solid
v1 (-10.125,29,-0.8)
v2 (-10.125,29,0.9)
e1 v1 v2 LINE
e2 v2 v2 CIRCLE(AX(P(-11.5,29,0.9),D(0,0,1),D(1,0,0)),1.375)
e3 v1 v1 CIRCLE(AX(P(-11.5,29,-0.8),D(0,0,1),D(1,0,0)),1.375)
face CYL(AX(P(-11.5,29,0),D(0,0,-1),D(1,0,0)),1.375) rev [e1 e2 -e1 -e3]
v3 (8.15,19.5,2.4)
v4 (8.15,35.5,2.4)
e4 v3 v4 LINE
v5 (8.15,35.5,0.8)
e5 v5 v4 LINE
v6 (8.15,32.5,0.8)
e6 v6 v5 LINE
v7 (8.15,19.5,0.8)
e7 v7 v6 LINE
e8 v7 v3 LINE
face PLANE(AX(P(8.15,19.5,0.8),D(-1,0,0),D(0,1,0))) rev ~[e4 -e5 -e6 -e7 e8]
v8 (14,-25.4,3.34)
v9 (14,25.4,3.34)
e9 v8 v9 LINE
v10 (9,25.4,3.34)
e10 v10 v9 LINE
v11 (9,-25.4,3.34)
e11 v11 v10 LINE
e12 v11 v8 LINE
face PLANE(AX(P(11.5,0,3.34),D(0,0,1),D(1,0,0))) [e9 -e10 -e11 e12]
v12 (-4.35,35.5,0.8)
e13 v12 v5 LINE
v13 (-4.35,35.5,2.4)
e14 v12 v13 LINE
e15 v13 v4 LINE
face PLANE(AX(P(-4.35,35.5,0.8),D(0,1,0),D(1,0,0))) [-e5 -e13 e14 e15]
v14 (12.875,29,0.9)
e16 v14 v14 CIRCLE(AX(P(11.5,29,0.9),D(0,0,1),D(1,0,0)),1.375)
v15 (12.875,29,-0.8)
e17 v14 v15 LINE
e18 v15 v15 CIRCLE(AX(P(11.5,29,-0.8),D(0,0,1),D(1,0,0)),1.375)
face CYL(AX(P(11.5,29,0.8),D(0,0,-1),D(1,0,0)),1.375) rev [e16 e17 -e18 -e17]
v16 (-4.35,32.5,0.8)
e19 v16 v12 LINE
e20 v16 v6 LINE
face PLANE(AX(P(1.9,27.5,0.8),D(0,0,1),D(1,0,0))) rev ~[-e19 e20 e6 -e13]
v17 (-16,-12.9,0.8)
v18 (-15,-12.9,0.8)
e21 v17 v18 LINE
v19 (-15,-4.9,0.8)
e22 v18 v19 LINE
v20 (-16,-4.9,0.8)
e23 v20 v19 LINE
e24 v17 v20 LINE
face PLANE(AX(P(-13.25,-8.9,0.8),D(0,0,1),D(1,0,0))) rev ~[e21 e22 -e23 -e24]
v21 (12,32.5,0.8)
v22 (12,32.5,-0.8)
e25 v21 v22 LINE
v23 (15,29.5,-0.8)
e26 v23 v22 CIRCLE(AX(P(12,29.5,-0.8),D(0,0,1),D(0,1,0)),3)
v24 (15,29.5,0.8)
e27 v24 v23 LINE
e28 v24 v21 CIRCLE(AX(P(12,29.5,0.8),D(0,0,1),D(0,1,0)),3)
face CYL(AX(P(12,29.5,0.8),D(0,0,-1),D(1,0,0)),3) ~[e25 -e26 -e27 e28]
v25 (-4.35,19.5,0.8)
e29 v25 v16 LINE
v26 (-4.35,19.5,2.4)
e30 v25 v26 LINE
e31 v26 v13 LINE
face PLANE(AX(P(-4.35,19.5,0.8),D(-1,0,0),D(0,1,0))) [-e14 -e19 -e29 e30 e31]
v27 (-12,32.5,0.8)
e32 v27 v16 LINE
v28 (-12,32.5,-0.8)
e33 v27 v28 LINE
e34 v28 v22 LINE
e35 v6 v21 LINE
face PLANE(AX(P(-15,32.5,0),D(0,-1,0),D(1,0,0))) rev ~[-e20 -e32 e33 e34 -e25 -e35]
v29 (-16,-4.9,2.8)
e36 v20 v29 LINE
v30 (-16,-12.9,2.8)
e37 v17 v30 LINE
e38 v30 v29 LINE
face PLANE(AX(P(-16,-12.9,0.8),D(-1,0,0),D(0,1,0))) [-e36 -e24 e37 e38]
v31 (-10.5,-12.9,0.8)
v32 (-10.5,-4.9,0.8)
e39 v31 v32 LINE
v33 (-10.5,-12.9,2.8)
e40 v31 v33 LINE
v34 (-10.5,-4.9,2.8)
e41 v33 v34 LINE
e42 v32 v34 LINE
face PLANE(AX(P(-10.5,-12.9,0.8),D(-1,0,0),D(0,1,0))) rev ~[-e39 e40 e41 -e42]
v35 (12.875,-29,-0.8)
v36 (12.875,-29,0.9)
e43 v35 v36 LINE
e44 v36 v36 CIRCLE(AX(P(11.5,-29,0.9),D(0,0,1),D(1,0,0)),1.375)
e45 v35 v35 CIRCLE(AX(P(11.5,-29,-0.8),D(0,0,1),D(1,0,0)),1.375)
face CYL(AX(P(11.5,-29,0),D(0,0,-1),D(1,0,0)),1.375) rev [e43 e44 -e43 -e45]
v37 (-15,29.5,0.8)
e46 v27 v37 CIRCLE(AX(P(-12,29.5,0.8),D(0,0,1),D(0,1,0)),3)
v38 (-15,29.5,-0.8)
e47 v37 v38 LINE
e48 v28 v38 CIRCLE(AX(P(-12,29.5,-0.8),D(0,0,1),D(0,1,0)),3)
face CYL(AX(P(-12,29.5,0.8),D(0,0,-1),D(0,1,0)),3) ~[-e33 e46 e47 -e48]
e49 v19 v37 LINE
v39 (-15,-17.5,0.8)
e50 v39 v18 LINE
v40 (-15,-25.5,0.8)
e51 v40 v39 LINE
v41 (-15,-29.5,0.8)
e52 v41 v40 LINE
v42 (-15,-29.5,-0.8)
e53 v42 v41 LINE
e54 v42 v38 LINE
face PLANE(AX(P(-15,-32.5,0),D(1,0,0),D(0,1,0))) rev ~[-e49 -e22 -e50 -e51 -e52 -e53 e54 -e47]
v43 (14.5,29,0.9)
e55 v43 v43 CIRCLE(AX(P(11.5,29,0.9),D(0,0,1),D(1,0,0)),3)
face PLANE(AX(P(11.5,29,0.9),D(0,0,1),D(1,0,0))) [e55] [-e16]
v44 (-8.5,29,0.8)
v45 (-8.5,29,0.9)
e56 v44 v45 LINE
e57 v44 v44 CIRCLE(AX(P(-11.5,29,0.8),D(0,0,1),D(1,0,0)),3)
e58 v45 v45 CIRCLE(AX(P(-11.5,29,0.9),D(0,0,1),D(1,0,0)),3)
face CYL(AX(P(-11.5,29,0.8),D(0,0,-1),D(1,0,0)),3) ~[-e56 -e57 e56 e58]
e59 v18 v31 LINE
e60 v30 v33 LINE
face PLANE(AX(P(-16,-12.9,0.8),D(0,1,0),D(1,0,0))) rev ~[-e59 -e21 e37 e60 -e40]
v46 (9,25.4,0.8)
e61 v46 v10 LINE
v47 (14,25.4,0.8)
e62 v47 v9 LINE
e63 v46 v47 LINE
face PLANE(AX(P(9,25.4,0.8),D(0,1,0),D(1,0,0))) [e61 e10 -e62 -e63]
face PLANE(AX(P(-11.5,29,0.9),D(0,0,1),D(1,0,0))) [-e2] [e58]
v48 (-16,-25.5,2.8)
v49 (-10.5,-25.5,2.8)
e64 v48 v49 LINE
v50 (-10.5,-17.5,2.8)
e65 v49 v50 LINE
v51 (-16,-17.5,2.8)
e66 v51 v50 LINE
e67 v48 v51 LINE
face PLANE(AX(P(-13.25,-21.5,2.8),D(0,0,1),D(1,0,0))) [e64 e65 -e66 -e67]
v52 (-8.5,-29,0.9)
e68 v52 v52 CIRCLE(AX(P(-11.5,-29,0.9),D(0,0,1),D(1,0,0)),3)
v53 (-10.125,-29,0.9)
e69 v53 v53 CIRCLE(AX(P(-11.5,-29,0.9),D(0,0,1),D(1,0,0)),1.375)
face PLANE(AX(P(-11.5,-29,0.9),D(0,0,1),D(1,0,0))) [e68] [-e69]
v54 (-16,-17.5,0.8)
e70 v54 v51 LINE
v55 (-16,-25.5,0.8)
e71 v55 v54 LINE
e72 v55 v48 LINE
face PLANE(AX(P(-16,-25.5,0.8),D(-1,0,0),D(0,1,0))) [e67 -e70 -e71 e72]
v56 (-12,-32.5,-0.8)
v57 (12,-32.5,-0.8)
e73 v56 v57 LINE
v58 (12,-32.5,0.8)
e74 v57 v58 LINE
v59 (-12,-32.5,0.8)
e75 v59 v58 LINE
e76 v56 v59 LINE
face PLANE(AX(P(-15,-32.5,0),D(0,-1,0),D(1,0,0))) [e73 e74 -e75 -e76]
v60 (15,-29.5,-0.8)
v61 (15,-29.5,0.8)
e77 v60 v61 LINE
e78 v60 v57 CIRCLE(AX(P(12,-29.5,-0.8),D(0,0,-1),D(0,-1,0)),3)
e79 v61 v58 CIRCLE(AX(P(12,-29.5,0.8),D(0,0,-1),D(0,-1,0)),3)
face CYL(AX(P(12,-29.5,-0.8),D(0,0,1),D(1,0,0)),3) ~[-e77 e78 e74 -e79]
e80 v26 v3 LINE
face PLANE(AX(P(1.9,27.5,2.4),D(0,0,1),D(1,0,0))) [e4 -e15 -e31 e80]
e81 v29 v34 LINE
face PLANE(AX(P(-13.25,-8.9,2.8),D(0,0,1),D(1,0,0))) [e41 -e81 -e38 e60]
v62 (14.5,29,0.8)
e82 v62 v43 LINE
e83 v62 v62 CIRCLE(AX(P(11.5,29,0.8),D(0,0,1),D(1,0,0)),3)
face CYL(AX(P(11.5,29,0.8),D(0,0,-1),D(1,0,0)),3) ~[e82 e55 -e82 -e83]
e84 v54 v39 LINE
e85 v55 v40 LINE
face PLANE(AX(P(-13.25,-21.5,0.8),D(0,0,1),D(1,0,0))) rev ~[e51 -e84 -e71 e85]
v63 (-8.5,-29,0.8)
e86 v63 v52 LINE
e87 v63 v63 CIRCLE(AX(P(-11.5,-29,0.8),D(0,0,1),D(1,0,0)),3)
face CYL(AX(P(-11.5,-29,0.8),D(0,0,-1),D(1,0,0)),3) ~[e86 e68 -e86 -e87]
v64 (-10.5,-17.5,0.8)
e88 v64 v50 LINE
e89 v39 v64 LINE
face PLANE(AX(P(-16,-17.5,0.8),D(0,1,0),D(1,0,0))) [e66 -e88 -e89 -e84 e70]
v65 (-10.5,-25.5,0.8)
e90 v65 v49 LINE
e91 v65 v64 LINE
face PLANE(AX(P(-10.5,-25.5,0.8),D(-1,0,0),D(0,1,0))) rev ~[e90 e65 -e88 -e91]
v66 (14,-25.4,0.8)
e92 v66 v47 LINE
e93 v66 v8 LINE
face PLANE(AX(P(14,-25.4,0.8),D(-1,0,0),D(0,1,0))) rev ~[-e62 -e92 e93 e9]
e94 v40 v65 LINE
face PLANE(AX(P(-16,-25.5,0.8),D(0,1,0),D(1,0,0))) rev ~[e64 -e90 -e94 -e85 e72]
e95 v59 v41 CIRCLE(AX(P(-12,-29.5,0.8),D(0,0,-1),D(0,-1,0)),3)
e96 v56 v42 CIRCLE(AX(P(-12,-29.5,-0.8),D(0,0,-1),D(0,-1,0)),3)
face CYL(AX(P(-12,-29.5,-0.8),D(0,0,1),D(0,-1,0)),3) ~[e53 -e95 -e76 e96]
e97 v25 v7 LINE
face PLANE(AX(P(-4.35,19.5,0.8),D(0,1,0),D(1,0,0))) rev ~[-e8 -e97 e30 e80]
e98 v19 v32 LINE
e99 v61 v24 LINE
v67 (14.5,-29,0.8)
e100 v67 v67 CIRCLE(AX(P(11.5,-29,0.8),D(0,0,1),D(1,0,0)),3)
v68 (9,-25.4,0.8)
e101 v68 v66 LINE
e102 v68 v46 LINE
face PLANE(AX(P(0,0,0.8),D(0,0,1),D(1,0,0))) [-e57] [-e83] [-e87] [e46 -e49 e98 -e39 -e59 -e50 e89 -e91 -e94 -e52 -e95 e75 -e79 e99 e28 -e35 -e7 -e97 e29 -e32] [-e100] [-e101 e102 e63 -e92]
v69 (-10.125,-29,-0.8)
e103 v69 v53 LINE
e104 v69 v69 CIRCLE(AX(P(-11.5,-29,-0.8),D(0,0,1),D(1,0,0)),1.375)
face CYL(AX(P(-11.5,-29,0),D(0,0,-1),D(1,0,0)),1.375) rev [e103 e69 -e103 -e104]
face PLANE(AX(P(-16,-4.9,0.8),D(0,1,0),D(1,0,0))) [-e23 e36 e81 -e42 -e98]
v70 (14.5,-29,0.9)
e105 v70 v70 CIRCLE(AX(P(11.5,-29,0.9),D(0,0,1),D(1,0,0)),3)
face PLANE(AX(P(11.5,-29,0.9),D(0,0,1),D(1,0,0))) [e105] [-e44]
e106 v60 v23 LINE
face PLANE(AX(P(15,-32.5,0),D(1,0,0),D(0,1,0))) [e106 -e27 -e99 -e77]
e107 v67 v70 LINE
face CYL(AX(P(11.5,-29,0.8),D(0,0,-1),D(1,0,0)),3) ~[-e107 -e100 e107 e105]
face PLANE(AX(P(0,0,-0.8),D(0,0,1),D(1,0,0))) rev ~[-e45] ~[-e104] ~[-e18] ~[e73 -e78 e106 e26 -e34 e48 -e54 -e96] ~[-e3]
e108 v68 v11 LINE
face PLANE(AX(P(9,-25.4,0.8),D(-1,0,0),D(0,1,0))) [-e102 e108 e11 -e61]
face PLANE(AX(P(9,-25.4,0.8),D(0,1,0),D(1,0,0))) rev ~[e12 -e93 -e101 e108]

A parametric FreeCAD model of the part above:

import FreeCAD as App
import Part
import Sketcher


def edges_at(feature, points):
    """Names of the edges that pass closest to the given points."""
    edges = feature.Shape.Edges
    near = lambda p: min(range(len(edges)), key=lambda i: edges[i].distToShape(Part.Vertex(*p))[0])
    return sorted({f"Edge{near(p) + 1}" for p in points})


def add_polygon(sketch, points):
    """Adds a closed chain of lines whose ends are joined by coincident constraints."""
    first, n = sketch.GeometryCount, len(points)
    for a, b in zip(points, points[1:] + points[:1]):
        sketch.addGeometry(Part.LineSegment(App.Vector(*a, 0), App.Vector(*b, 0)), False)
    for i in range(n):
        sketch.addConstraint(Sketcher.Constraint("Coincident", first + i, 2, first + (i + 1) % n, 1))

doc = App.newDocument("Part")
body = doc.addObject("PartDesign::Body", "Body")

# Sketch on XY plane
sketch1 = body.newObject("Sketcher::SketchObject", "Sketch")
sketch1.AttachmentSupport = (doc.getObject("XY_Plane"), [""])
sketch1.MapMode = "FlatFace"
add_polygon(sketch1, [(-15, 32.5), (-15, -32.5), (15, -32.5), (15, 32.5)])  # lines 0-3
sketch1.addGeometry(Part.Circle(App.Vector(-11.5, -29, 0), App.Vector(0, 0, 1), 1.4), False)  # 4
sketch1.addGeometry(Part.Circle(App.Vector(11.5, -29, 0), App.Vector(0, 0, 1), 1.4), False)  # 5
sketch1.addGeometry(Part.Circle(App.Vector(-11.5, 29, 0), App.Vector(0, 0, 1), 1.4), False)  # 6
sketch1.addGeometry(Part.Circle(App.Vector(11.5, 29, 0), App.Vector(0, 0, 1), 1.4), False)  # 7
sketch1.addConstraint(Sketcher.Constraint("Vertical", 0))
sketch1.addConstraint(Sketcher.Constraint("Horizontal", 1))
sketch1.addConstraint(Sketcher.Constraint("Vertical", 2))
sketch1.addConstraint(Sketcher.Constraint("Horizontal", 3))
sketch1.addConstraint(Sketcher.Constraint("Equal", 4, 5))
sketch1.addConstraint(Sketcher.Constraint("Equal", 5, 6))
sketch1.addConstraint(Sketcher.Constraint("Equal", 6, 7))
sketch1.addConstraint(Sketcher.Constraint("Symmetric", 5, 3, 6, 3, -1, 1))
sketch1.addConstraint(Sketcher.Constraint("Symmetric", 4, 3, 7, 3, -1, 1))
sketch1.addConstraint(Sketcher.Constraint("Symmetric", 0, 2, 2, 2, -1, 1))
sketch1.addConstraint(Sketcher.Constraint("Symmetric", 4, 3, 5, 3, -2))
sketch1.addConstraint(Sketcher.Constraint("Diameter", 4, 2.75))
sketch1.addConstraint(Sketcher.Constraint("DistanceX", 1, 1, 1, 2, 30.0))
sketch1.addConstraint(Sketcher.Constraint("DistanceY", 0, 2, 0, 1, 65.0))
sketch1.addConstraint(Sketcher.Constraint("DistanceY", 4, 3, -1, 1, 29.0))
sketch1.addConstraint(Sketcher.Constraint("DistanceX", 4, 3, 5, 3, 23.0))
pad1 = body.newObject("PartDesign::Pad", "Pad")
pad1.Profile = sketch1
pad1.Length = 1.6
pad1.Midplane = True

# Sketch on XY plane
sketch2 = body.newObject("Sketcher::SketchObject", "Sketch001")
sketch2.AttachmentSupport = (doc.getObject("XY_Plane"), [""])
sketch2.MapMode = "FlatFace"
sketch2.AttachmentOffset = App.Placement(App.Vector(0, 0, 0.8), App.Rotation())
sketch2.addGeometry(Part.Circle(App.Vector(11.5, 29, 0), App.Vector(0, 0, 1), 3), False)
sketch2.addGeometry(Part.Circle(App.Vector(11.5, 29, 0), App.Vector(0, 0, 1), 1.4), False)
sketch2.addGeometry(Part.Circle(App.Vector(11.5, -29, 0), App.Vector(0, 0, 1), 3), False)
sketch2.addGeometry(Part.Circle(App.Vector(11.5, -29, 0), App.Vector(0, 0, 1), 1.4), False)
sketch2.addGeometry(Part.Circle(App.Vector(-11.5, -29, 0), App.Vector(0, 0, 1), 3), False)
sketch2.addGeometry(Part.Circle(App.Vector(-11.5, -29, 0), App.Vector(0, 0, 1), 1.4), False)
sketch2.addGeometry(Part.Circle(App.Vector(-11.5, 29, 0), App.Vector(0, 0, 1), 3), False)
sketch2.addGeometry(Part.Circle(App.Vector(-11.5, 29, 0), App.Vector(0, 0, 1), 1.4), False)
sketch2.addConstraint(Sketcher.Constraint("Coincident", 1, 3, 0, 3))
sketch2.addConstraint(Sketcher.Constraint("Coincident", 3, 3, 2, 3))
sketch2.addConstraint(Sketcher.Constraint("Coincident", 5, 3, 4, 3))
sketch2.addConstraint(Sketcher.Constraint("Coincident", 7, 3, 6, 3))
sketch2.addConstraint(Sketcher.Constraint("Equal", 0, 2))
sketch2.addConstraint(Sketcher.Constraint("Equal", 1, 3))
sketch2.addConstraint(Sketcher.Constraint("Equal", 2, 4))
sketch2.addConstraint(Sketcher.Constraint("Equal", 3, 5))
sketch2.addConstraint(Sketcher.Constraint("Equal", 4, 6))
sketch2.addConstraint(Sketcher.Constraint("Equal", 5, 7))
sketch2.addConstraint(Sketcher.Constraint("Symmetric", 0, 3, 4, 3, -1, 1))
sketch2.addConstraint(Sketcher.Constraint("Symmetric", 2, 3, 6, 3, -1, 1))
sketch2.addConstraint(Sketcher.Constraint("Symmetric", 2, 3, 4, 3, -2))
sketch2.addConstraint(Sketcher.Constraint("Diameter", 0, 6.0))
sketch2.addConstraint(Sketcher.Constraint("Diameter", 1, 2.75))
sketch2.addConstraint(Sketcher.Constraint("DistanceY", -1, 1, 0, 3, 29.0))
sketch2.addConstraint(Sketcher.Constraint("DistanceX", 4, 3, 2, 3, 23.0))
pad2 = body.newObject("PartDesign::Pad", "Pad001")
pad2.Profile = sketch2
pad2.Length = 0.1
doc.recompute()

fillet = body.newObject("PartDesign::Fillet", "Fillet")
fillet.Base = (pad2, edges_at(pad2, [
    (-15, -32.5, 0),
    (-15, 32.5, 0),
    (15, 32.5, 0),
    (15, -32.5, 0),
]))
fillet.Radius = 3

# Sketch on XY plane
sketch3 = body.newObject("Sketcher::SketchObject", "Sketch002")
sketch3.AttachmentSupport = (doc.getObject("XY_Plane"), [""])
sketch3.MapMode = "FlatFace"
sketch3.AttachmentOffset = App.Placement(App.Vector(0, 0, 0.8), App.Rotation())
add_polygon(sketch3, [(-4, 36), (-4, 20), (8, 20), (8, 36)])  # lines 0-3
sketch3.addConstraint(Sketcher.Constraint("Vertical", 0))
sketch3.addConstraint(Sketcher.Constraint("Horizontal", 1))
sketch3.addConstraint(Sketcher.Constraint("Vertical", 2))
sketch3.addConstraint(Sketcher.Constraint("Horizontal", 3))
sketch3.addConstraint(Sketcher.Constraint("DistanceY", 0, 2, 0, 1, 16.0))
sketch3.addConstraint(Sketcher.Constraint("DistanceX", 1, 1, 1, 2, 12.5))
sketch3.addConstraint(Sketcher.Constraint("DistanceY", -1, 1, 0, 2, 19.5))
sketch3.addConstraint(Sketcher.Constraint("DistanceX", 0, 2, -1, 1, 4.35))
pad3 = body.newObject("PartDesign::Pad", "Pad002")
pad3.Profile = sketch3
pad3.Length = 1.6

# Sketch on XY plane
sketch4 = body.newObject("Sketcher::SketchObject", "Sketch003")
sketch4.AttachmentSupport = (doc.getObject("XY_Plane"), [""])
sketch4.MapMode = "FlatFace"
sketch4.AttachmentOffset = App.Placement(App.Vector(0, 0, 0.8), App.Rotation())
add_polygon(sketch4, [(9, 25), (9, -25), (14, -25), (14, 25)])  # lines 0-3
sketch4.addConstraint(Sketcher.Constraint("Vertical", 0))
sketch4.addConstraint(Sketcher.Constraint("Horizontal", 1))
sketch4.addConstraint(Sketcher.Constraint("Vertical", 2))
sketch4.addConstraint(Sketcher.Constraint("Horizontal", 3))
sketch4.addConstraint(Sketcher.Constraint("DistanceX", 1, 1, 1, 2, 5.0))
sketch4.addConstraint(Sketcher.Constraint("DistanceY", 0, 2, 0, 1, 50.8))
sketch4.addConstraint(Sketcher.Constraint("DistanceX", -1, 1, 0, 2, 9.0))
sketch4.addConstraint(Sketcher.Constraint("DistanceY", 0, 2, -1, 1, 25.4))
pad4 = body.newObject("PartDesign::Pad", "Pad003")
pad4.Profile = sketch4
pad4.Length = 2.54

# Sketch on XY plane
sketch5 = body.newObject("Sketcher::SketchObject", "Sketch004")
sketch5.AttachmentSupport = (doc.getObject("XY_Plane"), [""])
sketch5.MapMode = "FlatFace"
sketch5.AttachmentOffset = App.Placement(App.Vector(0, 0, 0.8), App.Rotation())
add_polygon(sketch5, [(-16, -18), (-16, -26), (-10, -26), (-10, -18)])  # lines 0-3
add_polygon(sketch5, [(-16, -5), (-16, -13), (-10, -13), (-10, -5)])  # lines 4-7
sketch5.addConstraint(Sketcher.Constraint("Vertical", 0))
sketch5.addConstraint(Sketcher.Constraint("Horizontal", 1))
sketch5.addConstraint(Sketcher.Constraint("Vertical", 2))
sketch5.addConstraint(Sketcher.Constraint("Horizontal", 3))
sketch5.addConstraint(Sketcher.Constraint("Vertical", 4))
sketch5.addConstraint(Sketcher.Constraint("Horizontal", 5))
sketch5.addConstraint(Sketcher.Constraint("Vertical", 6))
sketch5.addConstraint(Sketcher.Constraint("Horizontal", 7))
sketch5.addConstraint(Sketcher.Constraint("Vertical", 3, 2, 4, 2))
sketch5.addConstraint(Sketcher.Constraint("Vertical", 2, 2, 5, 2))
sketch5.addConstraint(Sketcher.Constraint("Equal", 2, 4))
sketch5.addConstraint(Sketcher.Constraint("DistanceY", 0, 2, 0, 1, 8.0))
sketch5.addConstraint(Sketcher.Constraint("DistanceX", 1, 1, 1, 2, 5.5))
sketch5.addConstraint(Sketcher.Constraint("DistanceX", 0, 2, -1, 1, 16.0))
sketch5.addConstraint(Sketcher.Constraint("DistanceY", 0, 2, -1, 1, 25.5))
sketch5.addConstraint(Sketcher.Constraint("DistanceY", 4, 2, -1, 1, 12.9))
pad5 = body.newObject("PartDesign::Pad", "Pad004")
pad5.Profile = sketch5
pad5.Length = 2

doc.recompute()
